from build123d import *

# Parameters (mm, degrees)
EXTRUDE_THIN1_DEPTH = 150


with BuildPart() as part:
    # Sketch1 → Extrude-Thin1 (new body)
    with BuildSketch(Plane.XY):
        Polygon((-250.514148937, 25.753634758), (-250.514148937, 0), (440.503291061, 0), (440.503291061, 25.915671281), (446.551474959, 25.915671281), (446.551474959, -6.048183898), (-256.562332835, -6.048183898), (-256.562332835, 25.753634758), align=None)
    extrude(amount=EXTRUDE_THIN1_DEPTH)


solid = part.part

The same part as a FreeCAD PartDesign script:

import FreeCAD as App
import Part
import Sketcher

V = App.Vector
Q = App.Units.Quantity

doc = App.newDocument("Part")
body = doc.addObject("PartDesign::Body", "Body")

sketch1 = body.newObject("Sketcher::SketchObject", "Sketch")
sketch1.AttachmentSupport = (doc.getObject("XY_Plane"), [""])
sketch1.MapMode = "FlatFace"
sketch1.addGeometry(Part.LineSegment(V(-250.514149, 0, 0), V(-250.514149, 25.753635, 0)), False)
sketch1.addGeometry(Part.LineSegment(V(-250.514149, 25.753635, 0), V(-256.562333, 25.753635, 0)), False)
sketch1.addGeometry(Part.LineSegment(V(-256.562333, 25.753635, 0), V(-256.562333, -6.048184, 0)), False)
sketch1.addGeometry(Part.LineSegment(V(-256.562333, -6.048184, 0), V(446.551475, -6.048184, 0)), False)
sketch1.addGeometry(Part.LineSegment(V(446.551475, -6.048184, 0), V(446.551475, 25.915671, 0)), False)
sketch1.addGeometry(Part.LineSegment(V(446.551475, 25.915671, 0), V(440.503291, 25.915671, 0)), False)
sketch1.addGeometry(Part.LineSegment(V(440.503291, 25.915671, 0), V(440.503291, 0, 0)), False)
sketch1.addGeometry(Part.LineSegment(V(440.503291, 0, 0), V(-250.514149, 0, 0)), False)
sketch1.addConstraint(Sketcher.Constraint("Coincident", 0, 2, 1, 1))
sketch1.addConstraint(Sketcher.Constraint("Coincident", 1, 2, 2, 1))
sketch1.addConstraint(Sketcher.Constraint("Coincident", 2, 2, 3, 1))
sketch1.addConstraint(Sketcher.Constraint("Coincident", 3, 2, 4, 1))
sketch1.addConstraint(Sketcher.Constraint("Coincident", 4, 2, 5, 1))
sketch1.addConstraint(Sketcher.Constraint("Coincident", 5, 2, 6, 1))
sketch1.addConstraint(Sketcher.Constraint("Coincident", 6, 2, 7, 1))
sketch1.addConstraint(Sketcher.Constraint("Coincident", 7, 2, 0, 1))
sketch1.addConstraint(Sketcher.Constraint("Vertical", 0))
sketch1.addConstraint(Sketcher.Constraint("Horizontal", 1))
sketch1.addConstraint(Sketcher.Constraint("Vertical", 2))
sketch1.addConstraint(Sketcher.Constraint("Horizontal", 3))
sketch1.addConstraint(Sketcher.Constraint("Vertical", 4))
sketch1.addConstraint(Sketcher.Constraint("Horizontal", 5))
sketch1.addConstraint(Sketcher.Constraint("Vertical", 6))
sketch1.addConstraint(Sketcher.Constraint("Horizontal", 7))
sketch1.addConstraint(Sketcher.Constraint("PointOnObject", 6, 2, -1))
sketch1.addConstraint(Sketcher.Constraint("Equal", 1, 5))
sketch1.addConstraint(Sketcher.Constraint("DistanceX", 7, 2, 7, 1, Q("691.01744 mm")))
sketch1.addConstraint(Sketcher.Constraint("DistanceY", 2, 2, 2, 1, Q("31.801819 mm")))
sketch1.addConstraint(Sketcher.Constraint("DistanceY", 6, 2, 6, 1, Q("25.915671 mm")))
sketch1.addConstraint(Sketcher.Constraint("DistanceX", 1, 2, 1, 1, Q("6.048184 mm")))
sketch1.addConstraint(Sketcher.Constraint("DistanceY", 0, 1, 0, 2, Q("25.753635 mm")))
sketch1.addConstraint(Sketcher.Constraint("DistanceX", 0, 2, -1, 1, Q("250.514149 mm")))
pad1 = body.newObject("PartDesign::Pad", "Pad")
pad1.Profile = sketch1
pad1.Length = 150

doc.recompute()
